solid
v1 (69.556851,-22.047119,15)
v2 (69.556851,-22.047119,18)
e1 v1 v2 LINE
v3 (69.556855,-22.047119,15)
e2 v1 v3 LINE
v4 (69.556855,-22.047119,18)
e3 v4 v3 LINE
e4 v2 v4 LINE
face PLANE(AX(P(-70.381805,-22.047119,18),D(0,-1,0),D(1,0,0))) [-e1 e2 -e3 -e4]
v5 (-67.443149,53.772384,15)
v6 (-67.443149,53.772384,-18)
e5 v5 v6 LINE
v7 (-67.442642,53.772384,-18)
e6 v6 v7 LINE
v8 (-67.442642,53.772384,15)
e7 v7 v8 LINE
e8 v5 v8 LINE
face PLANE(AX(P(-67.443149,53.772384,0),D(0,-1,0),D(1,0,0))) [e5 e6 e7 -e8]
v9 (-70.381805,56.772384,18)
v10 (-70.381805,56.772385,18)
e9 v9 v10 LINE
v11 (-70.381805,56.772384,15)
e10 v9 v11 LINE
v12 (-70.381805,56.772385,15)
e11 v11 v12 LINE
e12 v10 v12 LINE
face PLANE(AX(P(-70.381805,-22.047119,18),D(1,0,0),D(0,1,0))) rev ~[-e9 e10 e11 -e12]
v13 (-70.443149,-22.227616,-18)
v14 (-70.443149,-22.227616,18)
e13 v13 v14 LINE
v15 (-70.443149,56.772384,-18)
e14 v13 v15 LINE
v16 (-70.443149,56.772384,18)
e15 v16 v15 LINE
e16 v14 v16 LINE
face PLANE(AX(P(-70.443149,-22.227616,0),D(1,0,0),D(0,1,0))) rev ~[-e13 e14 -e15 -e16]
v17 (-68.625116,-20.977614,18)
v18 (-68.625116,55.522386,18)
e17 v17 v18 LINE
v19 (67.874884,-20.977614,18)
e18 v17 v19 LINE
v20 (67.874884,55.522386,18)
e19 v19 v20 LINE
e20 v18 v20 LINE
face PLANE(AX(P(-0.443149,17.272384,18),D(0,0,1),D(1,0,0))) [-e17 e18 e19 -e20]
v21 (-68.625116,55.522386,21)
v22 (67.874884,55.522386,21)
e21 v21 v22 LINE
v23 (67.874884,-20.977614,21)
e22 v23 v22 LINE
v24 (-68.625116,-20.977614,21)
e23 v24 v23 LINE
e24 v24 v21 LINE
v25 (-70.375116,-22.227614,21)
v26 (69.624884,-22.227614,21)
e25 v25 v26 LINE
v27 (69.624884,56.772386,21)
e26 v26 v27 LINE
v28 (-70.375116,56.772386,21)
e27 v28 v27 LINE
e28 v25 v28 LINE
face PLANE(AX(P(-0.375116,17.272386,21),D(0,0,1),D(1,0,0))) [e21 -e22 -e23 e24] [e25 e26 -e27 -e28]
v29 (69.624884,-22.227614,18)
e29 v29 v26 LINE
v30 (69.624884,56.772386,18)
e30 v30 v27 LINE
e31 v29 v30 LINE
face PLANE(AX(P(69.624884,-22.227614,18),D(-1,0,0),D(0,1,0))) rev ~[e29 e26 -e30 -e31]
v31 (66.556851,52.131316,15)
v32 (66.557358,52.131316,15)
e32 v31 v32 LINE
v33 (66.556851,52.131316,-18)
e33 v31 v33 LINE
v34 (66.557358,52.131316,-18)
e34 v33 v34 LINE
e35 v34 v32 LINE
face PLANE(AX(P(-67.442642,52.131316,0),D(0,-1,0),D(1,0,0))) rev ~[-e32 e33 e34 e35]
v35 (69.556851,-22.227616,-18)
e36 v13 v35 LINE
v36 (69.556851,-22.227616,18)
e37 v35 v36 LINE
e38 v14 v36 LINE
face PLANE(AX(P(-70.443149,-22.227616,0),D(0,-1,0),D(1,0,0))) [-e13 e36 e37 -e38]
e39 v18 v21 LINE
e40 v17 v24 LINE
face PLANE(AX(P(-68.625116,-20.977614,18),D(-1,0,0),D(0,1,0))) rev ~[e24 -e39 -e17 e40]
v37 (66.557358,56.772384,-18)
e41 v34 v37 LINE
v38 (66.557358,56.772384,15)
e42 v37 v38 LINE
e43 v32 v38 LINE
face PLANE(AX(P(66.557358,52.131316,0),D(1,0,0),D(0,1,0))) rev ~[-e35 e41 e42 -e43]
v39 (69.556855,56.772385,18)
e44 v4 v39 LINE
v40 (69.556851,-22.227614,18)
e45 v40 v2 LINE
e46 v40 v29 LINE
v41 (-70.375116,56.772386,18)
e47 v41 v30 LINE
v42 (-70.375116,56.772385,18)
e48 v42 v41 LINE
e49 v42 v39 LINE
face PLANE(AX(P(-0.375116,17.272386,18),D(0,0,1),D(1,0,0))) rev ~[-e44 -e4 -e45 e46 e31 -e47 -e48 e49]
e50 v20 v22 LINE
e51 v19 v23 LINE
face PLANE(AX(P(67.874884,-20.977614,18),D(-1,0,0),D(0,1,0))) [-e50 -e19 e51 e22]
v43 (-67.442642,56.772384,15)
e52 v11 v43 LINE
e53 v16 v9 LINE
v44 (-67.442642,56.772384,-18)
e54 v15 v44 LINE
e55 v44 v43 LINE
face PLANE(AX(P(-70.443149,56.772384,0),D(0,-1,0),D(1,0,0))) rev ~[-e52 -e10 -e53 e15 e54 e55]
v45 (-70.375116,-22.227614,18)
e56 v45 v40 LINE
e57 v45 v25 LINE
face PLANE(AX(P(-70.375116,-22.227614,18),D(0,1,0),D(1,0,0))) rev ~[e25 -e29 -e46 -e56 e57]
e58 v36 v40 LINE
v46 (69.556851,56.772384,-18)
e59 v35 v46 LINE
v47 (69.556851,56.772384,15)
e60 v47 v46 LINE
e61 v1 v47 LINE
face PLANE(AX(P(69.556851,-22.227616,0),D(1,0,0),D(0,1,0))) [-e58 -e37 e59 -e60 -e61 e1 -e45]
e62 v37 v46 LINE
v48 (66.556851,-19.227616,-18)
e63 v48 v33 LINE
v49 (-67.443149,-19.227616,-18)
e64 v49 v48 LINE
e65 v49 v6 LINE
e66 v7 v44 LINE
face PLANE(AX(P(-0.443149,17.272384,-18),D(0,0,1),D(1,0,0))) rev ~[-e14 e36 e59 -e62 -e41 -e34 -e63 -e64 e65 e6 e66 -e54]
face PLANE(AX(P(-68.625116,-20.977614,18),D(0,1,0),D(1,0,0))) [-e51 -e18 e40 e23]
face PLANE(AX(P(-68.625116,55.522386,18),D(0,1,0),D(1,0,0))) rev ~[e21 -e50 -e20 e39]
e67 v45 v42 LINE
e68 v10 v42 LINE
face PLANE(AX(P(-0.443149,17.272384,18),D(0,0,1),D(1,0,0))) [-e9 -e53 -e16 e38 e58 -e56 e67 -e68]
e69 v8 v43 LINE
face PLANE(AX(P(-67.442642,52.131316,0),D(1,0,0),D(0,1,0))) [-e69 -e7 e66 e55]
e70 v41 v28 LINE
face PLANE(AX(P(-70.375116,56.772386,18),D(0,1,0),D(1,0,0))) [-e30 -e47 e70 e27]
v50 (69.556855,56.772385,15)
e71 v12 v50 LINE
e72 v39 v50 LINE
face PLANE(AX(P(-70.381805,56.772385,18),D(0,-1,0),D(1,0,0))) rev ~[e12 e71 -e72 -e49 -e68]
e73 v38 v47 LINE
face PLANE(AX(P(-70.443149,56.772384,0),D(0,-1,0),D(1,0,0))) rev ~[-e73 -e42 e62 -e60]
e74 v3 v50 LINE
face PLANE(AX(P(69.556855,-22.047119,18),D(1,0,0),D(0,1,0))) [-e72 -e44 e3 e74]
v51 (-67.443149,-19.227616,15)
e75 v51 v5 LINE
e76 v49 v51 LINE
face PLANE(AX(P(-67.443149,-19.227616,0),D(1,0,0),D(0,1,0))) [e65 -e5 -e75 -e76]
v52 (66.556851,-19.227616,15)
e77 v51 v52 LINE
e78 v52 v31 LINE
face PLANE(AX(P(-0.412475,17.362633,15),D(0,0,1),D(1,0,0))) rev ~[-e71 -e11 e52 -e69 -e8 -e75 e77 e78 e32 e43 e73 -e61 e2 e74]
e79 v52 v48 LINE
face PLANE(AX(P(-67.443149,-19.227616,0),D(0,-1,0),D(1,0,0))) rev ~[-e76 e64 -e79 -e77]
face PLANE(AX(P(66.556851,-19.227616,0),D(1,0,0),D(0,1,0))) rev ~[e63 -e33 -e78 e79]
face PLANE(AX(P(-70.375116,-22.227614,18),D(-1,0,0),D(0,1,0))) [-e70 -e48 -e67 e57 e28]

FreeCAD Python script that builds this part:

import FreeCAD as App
import Part
import Sketcher

V = App.Vector
Q = App.Units.Quantity


def add_polygon(sketch, points):
    """Adds a closed chain of lines whose ends are joined by coincident constraints."""
    first, n = sketch.GeometryCount, len(points)
    for a, b in zip(points, points[1:] + points[:1]):
        sketch.addGeometry(Part.LineSegment(App.Vector(*a, 0), App.Vector(*b, 0)), False)
    for i in range(n):
        sketch.addConstraint(Sketcher.Constraint("Coincident", first + i, 2, first + (i + 1) % n, 1))

doc = App.newDocument("Part")
body = doc.addObject("PartDesign::Body", "Body")

# Sketch on XY plane
sketch1 = doc.addObject("Sketcher::SketchObject", "Sketch")
body.addObject(sketch1)
sketch1.AttachmentSupport = (doc.XY_Plane, [""])
sketch1.MapMode = "FlatFace"
sketch1.AttachmentOffset = App.Placement(V(0, 0, 18), App.Rotation())
add_polygon(sketch1, [(-70, 57), (-70, -22), (70, -22), (70, 57)])  # lines 0-3
add_polygon(sketch1, [(68, -21), (-69, -21), (-69, 56), (68, 56)])  # lines 4-7
sketch1.addConstraint(Sketcher.Constraint("Vertical", 0))
sketch1.addConstraint(Sketcher.Constraint("Horizontal", 1))
sketch1.addConstraint(Sketcher.Constraint("Vertical", 2))
sketch1.addConstraint(Sketcher.Constraint("Horizontal", 3))
sketch1.addConstraint(Sketcher.Constraint("Horizontal", 4))
sketch1.addConstraint(Sketcher.Constraint("Vertical", 5))
sketch1.addConstraint(Sketcher.Constraint("Horizontal", 6))
sketch1.addConstraint(Sketcher.Constraint("Vertical", 7))
sketch1.addConstraint(Sketcher.Constraint("DistanceX", 1, 1, 1, 2, Q("140 mm")))
sketch1.addConstraint(Sketcher.Constraint("DistanceY", 0, 2, 0, 1, Q("79 mm")))
sketch1.addConstraint(Sketcher.Constraint("DistanceX", 4, 2, 4, 1, Q("136.5 mm")))
sketch1.addConstraint(Sketcher.Constraint("DistanceY", 5, 1, 5, 2, Q("76.5 mm")))
sketch1.addConstraint(Sketcher.Constraint("DistanceX", 0, 2, 4, 2, Q("1.75 mm")))
sketch1.addConstraint(Sketcher.Constraint("DistanceY", 0, 2, 4, 2, Q("1.25 mm")))
sketch1.addConstraint(Sketcher.Constraint("DistanceX", 0, 2, -1, 1, Q("70.375116 mm")))
sketch1.addConstraint(Sketcher.Constraint("DistanceY", 0, 2, -1, 1, Q("22.227614 mm")))
pad1 = doc.addObject("PartDesign::Pad", "Pad")
body.addObject(pad1)
pad1.Profile = sketch1
pad1.Length = 3
body2 = doc.addObject("PartDesign::Body", "Body001")

# Sketch on XY plane
sketch2 = doc.addObject("Sketcher::SketchObject", "Sketch001")
body2.addObject(sketch2)
sketch2.AttachmentSupport = (doc.getObject("XY_Plane001"), [""])
sketch2.MapMode = "FlatFace"
add_polygon(sketch2, [(-67, 57), (-67, 52), (67, 52), (67, 57)])  # lines 0-3
sketch2.addConstraint(Sketcher.Constraint("Vertical", 0))
sketch2.addConstraint(Sketcher.Constraint("Horizontal", 1))
sketch2.addConstraint(Sketcher.Constraint("Vertical", 2))
sketch2.addConstraint(Sketcher.Constraint("Horizontal", 3))
sketch2.addConstraint(Sketcher.Constraint("DistanceX", 1, 1, 1, 2, Q("134 mm")))
sketch2.addConstraint(Sketcher.Constraint("DistanceY", 0, 2, 0, 1, Q("5 mm")))
sketch2.addConstraint(Sketcher.Constraint("DistanceX", 0, 2, -1, 1, Q("67.442642 mm")))
sketch2.addConstraint(Sketcher.Constraint("DistanceY", -1, 1, 0, 2, Q("52.131316 mm")))
pad2 = doc.addObject("PartDesign::Pad", "Pad001")
body2.addObject(pad2)
pad2.Profile = sketch2
pad2.Type = "TwoLengths"
pad2.Length = 15
pad2.Length2 = 18
body3 = doc.addObject("PartDesign::Body", "Body002")

# Sketch on XY plane
sketch3 = doc.addObject("Sketcher::SketchObject", "Sketch002")
body3.addObject(sketch3)
sketch3.AttachmentSupport = (doc.getObject("XY_Plane002"), [""])
sketch3.MapMode = "FlatFace"
add_polygon(sketch3, [(-70, 57), (-70, -22), (70, -22), (70, 57)])  # lines 0-3
add_polygon(sketch3, [(67, -19), (-67, -19), (-67, 54), (67, 54)])  # lines 4-7
sketch3.addConstraint(Sketcher.Constraint("Vertical", 0))
sketch3.addConstraint(Sketcher.Constraint("Horizontal", 1))
sketch3.addConstraint(Sketcher.Constraint("Vertical", 2))
sketch3.addConstraint(Sketcher.Constraint("Horizontal", 3))
sketch3.addConstraint(Sketcher.Constraint("Horizontal", 4))
sketch3.addConstraint(Sketcher.Constraint("Vertical", 5))
sketch3.addConstraint(Sketcher.Constraint("Horizontal", 6))
sketch3.addConstraint(Sketcher.Constraint("Vertical", 7))
sketch3.addConstraint(Sketcher.Constraint("DistanceX", 1, 1, 1, 2, Q("140 mm")))
sketch3.addConstraint(Sketcher.Constraint("DistanceX", 4, 2, 4, 1, Q("134 mm")))
sketch3.addConstraint(Sketcher.Constraint("DistanceY", 0, 2, 0, 1, Q("79 mm")))
sketch3.addConstraint(Sketcher.Constraint("DistanceY", 5, 1, 5, 2, Q("73 mm")))
sketch3.addConstraint(Sketcher.Constraint("DistanceX", 0, 2, 4, 2, Q("3 mm")))
sketch3.addConstraint(Sketcher.Constraint("DistanceY", 0, 2, 4, 2, Q("3 mm")))
sketch3.addConstraint(Sketcher.Constraint("DistanceX", 0, 2, -1, 1, Q("70.443149 mm")))
sketch3.addConstraint(Sketcher.Constraint("DistanceY", 0, 2, -1, 1, Q("22.227616 mm")))
pad3 = doc.addObject("PartDesign::Pad", "Pad002")
body3.addObject(pad3)
pad3.Profile = sketch3
pad3.Length = 36
pad3.Midplane = True
body4 = doc.addObject("PartDesign::Body", "Body003")

# Sketch on XY plane
sketch4 = doc.addObject("Sketcher::SketchObject", "Sketch003")
body4.addObject(sketch4)
sketch4.AttachmentSupport = (doc.getObject("XY_Plane003"), [""])
sketch4.MapMode = "FlatFace"
sketch4.AttachmentOffset = App.Placement(V(0, 0, 18), App.Rotation())
add_polygon(sketch4, [(-70, 57), (-70, -22), (70, -22), (70, 57)])  # lines 0-3
sketch4.addConstraint(Sketcher.Constraint("Vertical", 0))
sketch4.addConstraint(Sketcher.Constraint("Horizontal", 1))
sketch4.addConstraint(Sketcher.Constraint("Vertical", 2))
sketch4.addConstraint(Sketcher.Constraint("Horizontal", 3))
sketch4.addConstraint(Sketcher.Constraint("DistanceX", 1, 1, 1, 2, Q("139.93866 mm")))
sketch4.addConstraint(Sketcher.Constraint("DistanceY", 0, 2, 0, 1, Q("78.819504 mm")))
sketch4.addConstraint(Sketcher.Constraint("DistanceY", 0, 2, -1, 1, Q("22.047119 mm")))
sketch4.addConstraint(Sketcher.Constraint("DistanceX", 0, 2, -1, 1, Q("70.381805 mm")))
pad4 = doc.addObject("PartDesign::Pad", "Pad003")
body4.addObject(pad4)
pad4.Profile = sketch4
pad4.Length = 3
pad4.Reversed = True
doc.recompute()

boolean = doc.addObject("PartDesign::Boolean", "Boolean")
body4.addObject(boolean)
boolean.Type = "Fuse"
boolean.addObjects([body3])
doc.recompute()

boolean2 = doc.addObject("PartDesign::Boolean", "Boolean001")
body4.addObject(boolean2)
boolean2.Type = "Cut"
boolean2.addObjects([body2])
doc.recompute()

boolean3 = doc.addObject("PartDesign::Boolean", "Boolean002")
body4.addObject(boolean3)
boolean3.Type = "Fuse"
boolean3.addObjects([body])

doc.recompute()
